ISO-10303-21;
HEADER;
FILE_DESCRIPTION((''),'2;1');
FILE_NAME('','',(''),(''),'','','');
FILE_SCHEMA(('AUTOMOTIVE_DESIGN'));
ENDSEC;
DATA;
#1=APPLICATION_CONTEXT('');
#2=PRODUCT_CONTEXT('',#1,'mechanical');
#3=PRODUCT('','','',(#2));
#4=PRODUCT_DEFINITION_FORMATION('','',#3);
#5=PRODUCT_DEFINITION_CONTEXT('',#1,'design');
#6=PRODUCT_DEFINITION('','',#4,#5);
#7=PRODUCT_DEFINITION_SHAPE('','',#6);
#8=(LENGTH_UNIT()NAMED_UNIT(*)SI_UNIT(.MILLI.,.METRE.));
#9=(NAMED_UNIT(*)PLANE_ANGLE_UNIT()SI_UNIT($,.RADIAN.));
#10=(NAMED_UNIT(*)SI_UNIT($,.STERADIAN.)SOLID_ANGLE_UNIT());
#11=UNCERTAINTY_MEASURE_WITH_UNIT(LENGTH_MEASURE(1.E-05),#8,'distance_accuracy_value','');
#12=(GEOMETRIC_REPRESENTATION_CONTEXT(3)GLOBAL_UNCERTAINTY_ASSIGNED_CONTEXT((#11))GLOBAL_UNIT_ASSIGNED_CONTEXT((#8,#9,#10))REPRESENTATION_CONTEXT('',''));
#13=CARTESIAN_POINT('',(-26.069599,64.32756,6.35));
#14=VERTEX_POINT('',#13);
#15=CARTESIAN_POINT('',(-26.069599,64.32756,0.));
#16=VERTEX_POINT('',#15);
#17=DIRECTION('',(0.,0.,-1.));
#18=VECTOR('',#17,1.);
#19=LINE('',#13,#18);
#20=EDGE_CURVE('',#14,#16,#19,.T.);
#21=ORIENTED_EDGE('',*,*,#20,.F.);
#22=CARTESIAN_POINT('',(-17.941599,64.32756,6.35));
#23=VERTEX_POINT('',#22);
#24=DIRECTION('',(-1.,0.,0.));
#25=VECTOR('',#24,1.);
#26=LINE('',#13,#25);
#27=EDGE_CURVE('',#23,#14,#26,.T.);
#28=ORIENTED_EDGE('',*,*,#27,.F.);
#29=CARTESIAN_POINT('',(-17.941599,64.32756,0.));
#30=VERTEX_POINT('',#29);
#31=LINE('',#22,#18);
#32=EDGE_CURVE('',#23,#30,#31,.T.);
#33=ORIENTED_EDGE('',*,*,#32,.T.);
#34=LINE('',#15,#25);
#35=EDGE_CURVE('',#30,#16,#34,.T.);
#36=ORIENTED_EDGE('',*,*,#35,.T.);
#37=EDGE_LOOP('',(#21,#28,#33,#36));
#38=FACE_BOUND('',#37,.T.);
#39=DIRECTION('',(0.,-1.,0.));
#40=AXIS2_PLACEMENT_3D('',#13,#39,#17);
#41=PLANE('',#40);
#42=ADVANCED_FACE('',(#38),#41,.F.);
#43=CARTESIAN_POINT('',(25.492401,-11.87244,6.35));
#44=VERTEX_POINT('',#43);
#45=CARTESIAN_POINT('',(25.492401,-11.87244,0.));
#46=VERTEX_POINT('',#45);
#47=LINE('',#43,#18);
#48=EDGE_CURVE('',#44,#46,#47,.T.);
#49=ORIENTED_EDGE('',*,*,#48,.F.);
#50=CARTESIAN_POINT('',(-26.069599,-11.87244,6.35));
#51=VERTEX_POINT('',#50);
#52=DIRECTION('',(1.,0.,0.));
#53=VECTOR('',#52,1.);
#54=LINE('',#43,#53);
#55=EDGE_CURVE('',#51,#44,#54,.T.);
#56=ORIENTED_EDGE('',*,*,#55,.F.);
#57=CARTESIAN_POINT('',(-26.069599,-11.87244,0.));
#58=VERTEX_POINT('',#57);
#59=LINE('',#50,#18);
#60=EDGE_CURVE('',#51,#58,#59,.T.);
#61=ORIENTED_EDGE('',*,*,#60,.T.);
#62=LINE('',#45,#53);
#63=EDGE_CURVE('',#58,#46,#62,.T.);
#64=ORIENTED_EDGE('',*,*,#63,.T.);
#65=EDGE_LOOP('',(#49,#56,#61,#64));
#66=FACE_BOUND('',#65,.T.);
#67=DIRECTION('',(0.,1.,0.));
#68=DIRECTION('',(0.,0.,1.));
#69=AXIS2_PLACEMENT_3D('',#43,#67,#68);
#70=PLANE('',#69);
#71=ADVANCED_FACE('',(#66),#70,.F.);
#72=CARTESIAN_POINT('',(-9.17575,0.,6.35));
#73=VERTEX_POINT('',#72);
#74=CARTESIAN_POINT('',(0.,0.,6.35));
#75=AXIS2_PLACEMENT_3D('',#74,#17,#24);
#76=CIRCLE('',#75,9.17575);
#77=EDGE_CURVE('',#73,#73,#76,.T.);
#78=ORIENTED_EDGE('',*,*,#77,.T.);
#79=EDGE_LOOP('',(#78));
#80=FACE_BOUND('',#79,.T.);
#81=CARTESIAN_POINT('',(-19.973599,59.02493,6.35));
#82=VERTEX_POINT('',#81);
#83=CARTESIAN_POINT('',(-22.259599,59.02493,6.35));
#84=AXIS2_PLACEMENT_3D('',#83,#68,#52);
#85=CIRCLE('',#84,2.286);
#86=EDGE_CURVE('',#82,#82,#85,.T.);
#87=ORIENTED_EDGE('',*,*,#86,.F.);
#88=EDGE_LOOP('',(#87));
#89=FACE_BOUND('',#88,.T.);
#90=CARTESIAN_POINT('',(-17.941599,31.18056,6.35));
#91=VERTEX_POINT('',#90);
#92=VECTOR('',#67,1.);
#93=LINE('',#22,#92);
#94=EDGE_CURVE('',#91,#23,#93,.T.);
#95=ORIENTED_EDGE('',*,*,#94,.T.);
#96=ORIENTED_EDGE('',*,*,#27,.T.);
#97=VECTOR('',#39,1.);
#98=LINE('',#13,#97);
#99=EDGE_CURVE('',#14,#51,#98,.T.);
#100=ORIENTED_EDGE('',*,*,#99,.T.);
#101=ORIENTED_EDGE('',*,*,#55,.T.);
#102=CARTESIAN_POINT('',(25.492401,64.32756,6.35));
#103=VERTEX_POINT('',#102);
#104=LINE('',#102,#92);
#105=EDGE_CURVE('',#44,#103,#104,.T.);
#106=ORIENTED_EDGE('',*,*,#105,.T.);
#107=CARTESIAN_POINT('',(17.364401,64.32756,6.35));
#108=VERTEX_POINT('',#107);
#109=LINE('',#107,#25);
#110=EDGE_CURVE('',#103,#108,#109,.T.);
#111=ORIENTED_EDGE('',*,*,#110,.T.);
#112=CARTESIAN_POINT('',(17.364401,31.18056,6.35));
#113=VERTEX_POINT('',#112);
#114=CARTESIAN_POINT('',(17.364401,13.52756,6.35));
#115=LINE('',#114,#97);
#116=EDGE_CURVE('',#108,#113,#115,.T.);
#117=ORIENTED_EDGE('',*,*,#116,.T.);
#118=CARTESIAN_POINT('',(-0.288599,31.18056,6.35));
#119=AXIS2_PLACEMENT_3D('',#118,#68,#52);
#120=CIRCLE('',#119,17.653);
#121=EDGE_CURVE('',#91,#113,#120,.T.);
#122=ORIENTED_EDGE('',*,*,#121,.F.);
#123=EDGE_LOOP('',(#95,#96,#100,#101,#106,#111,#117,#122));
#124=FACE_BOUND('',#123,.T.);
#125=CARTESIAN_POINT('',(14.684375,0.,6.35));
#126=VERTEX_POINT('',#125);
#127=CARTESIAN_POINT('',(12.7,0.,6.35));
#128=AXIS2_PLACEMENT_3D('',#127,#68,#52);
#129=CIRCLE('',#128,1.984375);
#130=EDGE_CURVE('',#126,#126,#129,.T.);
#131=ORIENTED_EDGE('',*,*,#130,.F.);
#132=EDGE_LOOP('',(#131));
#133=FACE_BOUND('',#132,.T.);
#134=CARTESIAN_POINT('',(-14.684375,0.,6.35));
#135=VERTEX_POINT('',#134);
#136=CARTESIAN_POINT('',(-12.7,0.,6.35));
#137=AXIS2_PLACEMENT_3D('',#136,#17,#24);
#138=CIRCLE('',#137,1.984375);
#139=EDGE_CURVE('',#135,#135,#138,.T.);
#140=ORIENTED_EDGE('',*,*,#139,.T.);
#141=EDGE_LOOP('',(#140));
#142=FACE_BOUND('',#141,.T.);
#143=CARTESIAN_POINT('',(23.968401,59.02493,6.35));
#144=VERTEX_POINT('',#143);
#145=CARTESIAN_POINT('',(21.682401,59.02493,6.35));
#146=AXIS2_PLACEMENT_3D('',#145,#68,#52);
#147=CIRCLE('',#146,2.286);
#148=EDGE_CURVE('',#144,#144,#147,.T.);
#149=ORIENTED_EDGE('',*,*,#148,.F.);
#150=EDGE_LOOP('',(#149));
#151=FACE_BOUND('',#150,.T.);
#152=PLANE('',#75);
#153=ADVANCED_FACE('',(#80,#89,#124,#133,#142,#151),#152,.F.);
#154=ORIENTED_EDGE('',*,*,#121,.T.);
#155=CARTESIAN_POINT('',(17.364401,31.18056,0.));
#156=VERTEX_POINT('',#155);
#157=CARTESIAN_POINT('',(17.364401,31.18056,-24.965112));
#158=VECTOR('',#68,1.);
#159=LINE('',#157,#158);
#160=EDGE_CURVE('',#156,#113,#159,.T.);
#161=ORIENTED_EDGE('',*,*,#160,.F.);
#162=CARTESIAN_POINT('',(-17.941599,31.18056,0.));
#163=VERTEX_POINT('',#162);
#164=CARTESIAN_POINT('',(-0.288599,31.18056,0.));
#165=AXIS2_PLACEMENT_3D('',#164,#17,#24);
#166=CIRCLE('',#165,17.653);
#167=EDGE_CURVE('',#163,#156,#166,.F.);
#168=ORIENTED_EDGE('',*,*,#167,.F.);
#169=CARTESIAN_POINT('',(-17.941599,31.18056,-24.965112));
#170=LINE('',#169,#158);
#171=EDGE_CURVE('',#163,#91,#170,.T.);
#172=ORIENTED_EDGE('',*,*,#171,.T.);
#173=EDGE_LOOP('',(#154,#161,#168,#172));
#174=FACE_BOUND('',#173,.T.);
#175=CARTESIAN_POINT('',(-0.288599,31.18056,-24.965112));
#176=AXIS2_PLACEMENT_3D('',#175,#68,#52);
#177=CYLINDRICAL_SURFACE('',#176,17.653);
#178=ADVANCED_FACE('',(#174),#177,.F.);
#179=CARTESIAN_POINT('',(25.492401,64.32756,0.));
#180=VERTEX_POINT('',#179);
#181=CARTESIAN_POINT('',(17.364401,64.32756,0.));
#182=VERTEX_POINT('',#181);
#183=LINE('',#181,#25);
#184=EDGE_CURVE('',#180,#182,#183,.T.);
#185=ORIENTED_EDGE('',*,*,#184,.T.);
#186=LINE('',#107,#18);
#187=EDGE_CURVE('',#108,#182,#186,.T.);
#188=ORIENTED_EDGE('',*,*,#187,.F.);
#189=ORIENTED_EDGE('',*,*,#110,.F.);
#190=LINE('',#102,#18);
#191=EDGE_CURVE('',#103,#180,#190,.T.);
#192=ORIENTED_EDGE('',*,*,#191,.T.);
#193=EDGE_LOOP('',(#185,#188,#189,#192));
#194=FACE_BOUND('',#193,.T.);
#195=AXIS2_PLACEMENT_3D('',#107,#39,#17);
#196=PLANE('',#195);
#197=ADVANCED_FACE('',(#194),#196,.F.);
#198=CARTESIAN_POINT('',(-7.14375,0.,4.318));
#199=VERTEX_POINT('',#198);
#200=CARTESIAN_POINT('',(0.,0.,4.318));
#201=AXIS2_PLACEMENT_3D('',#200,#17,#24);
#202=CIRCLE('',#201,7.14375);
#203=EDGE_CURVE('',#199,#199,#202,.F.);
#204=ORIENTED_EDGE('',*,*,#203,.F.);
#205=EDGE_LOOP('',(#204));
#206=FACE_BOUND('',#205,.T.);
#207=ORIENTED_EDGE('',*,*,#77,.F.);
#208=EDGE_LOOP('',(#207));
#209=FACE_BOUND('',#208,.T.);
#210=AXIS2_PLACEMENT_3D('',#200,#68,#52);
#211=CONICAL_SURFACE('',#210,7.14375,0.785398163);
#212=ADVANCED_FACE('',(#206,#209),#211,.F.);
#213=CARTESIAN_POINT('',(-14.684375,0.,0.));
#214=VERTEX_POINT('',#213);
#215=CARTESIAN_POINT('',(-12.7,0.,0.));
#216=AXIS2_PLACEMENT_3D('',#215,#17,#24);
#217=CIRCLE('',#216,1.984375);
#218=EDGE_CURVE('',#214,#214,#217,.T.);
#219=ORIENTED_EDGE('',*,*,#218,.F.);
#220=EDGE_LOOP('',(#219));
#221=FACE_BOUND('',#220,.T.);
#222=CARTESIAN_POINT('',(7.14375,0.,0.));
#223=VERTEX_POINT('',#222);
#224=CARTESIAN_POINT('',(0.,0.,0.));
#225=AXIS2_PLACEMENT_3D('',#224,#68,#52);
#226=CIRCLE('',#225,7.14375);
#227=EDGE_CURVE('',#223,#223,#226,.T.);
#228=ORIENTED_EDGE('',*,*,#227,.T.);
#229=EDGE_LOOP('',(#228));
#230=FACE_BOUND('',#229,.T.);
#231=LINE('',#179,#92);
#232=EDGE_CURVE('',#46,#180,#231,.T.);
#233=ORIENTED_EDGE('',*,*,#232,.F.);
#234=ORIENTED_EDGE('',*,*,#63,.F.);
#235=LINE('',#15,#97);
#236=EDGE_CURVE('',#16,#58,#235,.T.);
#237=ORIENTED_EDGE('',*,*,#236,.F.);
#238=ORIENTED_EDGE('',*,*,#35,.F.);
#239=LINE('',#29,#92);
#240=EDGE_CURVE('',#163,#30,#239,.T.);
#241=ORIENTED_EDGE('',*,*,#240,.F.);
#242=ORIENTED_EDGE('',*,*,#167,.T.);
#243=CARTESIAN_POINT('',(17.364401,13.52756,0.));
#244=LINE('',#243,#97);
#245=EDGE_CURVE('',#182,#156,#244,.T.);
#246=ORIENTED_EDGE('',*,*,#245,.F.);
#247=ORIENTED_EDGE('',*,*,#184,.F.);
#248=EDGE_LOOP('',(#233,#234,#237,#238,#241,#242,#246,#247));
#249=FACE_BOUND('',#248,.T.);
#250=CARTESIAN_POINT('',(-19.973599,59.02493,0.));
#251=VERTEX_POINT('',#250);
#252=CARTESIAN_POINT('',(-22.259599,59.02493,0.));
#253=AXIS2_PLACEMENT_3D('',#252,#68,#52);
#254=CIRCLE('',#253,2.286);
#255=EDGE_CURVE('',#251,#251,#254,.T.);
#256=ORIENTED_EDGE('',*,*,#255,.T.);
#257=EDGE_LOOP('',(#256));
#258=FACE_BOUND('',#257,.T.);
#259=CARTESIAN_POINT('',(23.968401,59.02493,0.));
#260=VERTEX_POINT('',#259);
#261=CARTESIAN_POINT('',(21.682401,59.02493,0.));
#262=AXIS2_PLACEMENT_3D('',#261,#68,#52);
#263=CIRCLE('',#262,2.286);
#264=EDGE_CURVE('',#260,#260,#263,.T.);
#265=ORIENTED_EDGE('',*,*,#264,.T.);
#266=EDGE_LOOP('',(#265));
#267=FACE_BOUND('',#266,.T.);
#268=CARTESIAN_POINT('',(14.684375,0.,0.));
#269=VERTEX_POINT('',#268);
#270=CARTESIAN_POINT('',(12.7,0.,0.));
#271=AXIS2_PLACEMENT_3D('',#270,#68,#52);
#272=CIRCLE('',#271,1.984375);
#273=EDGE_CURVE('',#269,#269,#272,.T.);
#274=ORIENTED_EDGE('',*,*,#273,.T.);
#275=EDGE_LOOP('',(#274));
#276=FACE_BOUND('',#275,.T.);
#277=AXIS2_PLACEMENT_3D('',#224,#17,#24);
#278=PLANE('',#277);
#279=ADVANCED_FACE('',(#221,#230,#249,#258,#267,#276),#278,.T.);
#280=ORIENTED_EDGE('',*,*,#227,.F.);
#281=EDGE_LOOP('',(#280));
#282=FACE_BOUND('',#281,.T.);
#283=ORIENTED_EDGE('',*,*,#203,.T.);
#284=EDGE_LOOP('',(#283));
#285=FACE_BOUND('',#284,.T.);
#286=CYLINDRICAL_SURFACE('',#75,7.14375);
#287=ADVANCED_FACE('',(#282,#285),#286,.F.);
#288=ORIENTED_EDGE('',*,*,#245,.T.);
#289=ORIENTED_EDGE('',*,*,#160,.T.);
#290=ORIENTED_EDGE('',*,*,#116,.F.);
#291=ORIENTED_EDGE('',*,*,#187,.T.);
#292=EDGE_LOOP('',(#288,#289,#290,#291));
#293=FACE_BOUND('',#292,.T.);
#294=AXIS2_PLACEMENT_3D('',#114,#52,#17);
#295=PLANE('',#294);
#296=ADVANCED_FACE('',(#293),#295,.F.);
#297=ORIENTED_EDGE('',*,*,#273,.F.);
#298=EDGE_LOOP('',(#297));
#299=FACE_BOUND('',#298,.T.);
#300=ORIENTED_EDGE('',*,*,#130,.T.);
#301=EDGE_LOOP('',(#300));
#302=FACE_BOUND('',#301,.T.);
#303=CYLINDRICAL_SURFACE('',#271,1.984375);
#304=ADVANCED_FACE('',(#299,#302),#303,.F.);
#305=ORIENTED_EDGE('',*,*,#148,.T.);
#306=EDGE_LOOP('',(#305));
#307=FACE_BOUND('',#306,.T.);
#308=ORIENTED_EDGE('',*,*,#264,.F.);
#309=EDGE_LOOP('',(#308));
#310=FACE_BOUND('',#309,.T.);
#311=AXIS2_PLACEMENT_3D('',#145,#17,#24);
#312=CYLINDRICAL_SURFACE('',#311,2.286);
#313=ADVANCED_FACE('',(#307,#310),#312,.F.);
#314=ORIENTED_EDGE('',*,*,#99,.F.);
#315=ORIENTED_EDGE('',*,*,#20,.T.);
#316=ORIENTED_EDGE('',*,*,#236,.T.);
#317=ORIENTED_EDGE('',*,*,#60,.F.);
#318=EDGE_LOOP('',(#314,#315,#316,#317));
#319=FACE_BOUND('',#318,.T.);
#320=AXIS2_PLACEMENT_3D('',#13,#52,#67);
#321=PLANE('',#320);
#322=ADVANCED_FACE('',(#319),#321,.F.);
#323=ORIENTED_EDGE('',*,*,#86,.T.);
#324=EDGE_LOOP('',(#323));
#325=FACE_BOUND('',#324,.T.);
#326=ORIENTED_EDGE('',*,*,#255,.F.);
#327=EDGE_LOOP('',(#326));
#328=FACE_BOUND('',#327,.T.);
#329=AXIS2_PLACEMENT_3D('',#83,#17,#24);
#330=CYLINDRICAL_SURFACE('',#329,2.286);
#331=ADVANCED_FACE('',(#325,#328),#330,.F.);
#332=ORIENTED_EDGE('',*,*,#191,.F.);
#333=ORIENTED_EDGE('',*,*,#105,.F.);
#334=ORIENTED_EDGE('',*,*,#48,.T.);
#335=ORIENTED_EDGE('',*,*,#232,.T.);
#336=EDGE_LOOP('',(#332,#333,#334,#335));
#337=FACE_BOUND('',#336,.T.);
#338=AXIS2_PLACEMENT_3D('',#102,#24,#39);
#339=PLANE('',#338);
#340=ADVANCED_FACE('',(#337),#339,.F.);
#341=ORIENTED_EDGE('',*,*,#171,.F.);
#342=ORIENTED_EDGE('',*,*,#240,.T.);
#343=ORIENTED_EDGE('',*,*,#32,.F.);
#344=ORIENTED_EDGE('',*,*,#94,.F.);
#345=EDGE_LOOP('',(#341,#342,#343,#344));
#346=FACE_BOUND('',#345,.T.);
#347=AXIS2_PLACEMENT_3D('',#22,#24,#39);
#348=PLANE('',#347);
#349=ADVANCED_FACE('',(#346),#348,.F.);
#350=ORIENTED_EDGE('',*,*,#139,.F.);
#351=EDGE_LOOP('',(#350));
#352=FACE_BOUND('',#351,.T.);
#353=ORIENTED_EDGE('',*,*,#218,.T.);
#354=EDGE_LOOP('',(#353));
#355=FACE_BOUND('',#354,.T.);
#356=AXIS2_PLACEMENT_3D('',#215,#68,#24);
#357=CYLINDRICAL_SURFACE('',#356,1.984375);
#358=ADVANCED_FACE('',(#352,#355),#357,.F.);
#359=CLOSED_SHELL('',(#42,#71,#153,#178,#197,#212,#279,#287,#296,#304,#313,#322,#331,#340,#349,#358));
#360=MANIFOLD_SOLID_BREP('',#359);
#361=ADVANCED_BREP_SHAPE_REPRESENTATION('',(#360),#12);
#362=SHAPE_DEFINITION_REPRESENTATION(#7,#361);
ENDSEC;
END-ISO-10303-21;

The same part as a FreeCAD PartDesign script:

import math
import FreeCAD as App
import Part
import Sketcher
Q = App.Units.Quantity


def edges_at(feature, points):
    """Names of the edges that pass closest to the given points."""
    edges = feature.Shape.Edges
    near = lambda p: min(range(len(edges)), key=lambda i: edges[i].distToShape(Part.Vertex(*p))[0])
    return sorted({f"Edge{near(p) + 1}" for p in points})


def add_polygon(sketch, points):
    """Adds a closed chain of lines whose ends are joined by coincident constraints."""
    first, n = sketch.GeometryCount, len(points)
    for a, b in zip(points, points[1:] + points[:1]):
        sketch.addGeometry(Part.LineSegment(App.Vector(*a, 0), App.Vector(*b, 0)), False)
    for i in range(n):
        sketch.addConstraint(Sketcher.Constraint("Coincident", first + i, 2, first + (i + 1) % n, 1))

doc = App.newDocument("Part")
body = doc.addObject("PartDesign::Body", "Body")

sketch1 = body.newObject("Sketcher::SketchObject", "Sketch")
sketch1.AttachmentSupport = (doc.getObject("XY_Plane"), [""])
sketch1.MapMode = "FlatFace"
add_polygon(sketch1, [(-17.941599, 64.32756), (-26.069599, 64.32756), (-26.069599, -11.87244), (25.492401, -11.87244), (25.492401, 64.32756), (17.364401, 64.32756), (17.364401, 13.52756), (-17.941599, 13.52756)])
sketch1.addGeometry(Part.Circle(App.Vector(0, 0, 0), App.Vector(0, 0, 1), 7.14375), False)
sketch1.addGeometry(Part.Circle(App.Vector(21.682401, 59.02493, 0), App.Vector(0, 0, 1), 2.286), False)
sketch1.addGeometry(Part.Circle(App.Vector(-22.259599, 59.02493, 0), App.Vector(0, 0, 1), 2.286), False)
sketch1.addConstraint([
    Sketcher.Constraint("Horizontal", 0),
    Sketcher.Constraint("Vertical", 1),
    Sketcher.Constraint("Horizontal", 2),
    Sketcher.Constraint("Vertical", 3),
    Sketcher.Constraint("Horizontal", 4),
    Sketcher.Constraint("Vertical", 5),
    Sketcher.Constraint("Horizontal", 6),
    Sketcher.Constraint("Vertical", 7),
    Sketcher.Constraint("Coincident", 8, 3, -1, 1),
    Sketcher.Constraint("Equal", 9, 10),
    Sketcher.Constraint("Horizontal", 9, 3, 10, 3),
    Sketcher.Constraint("Horizontal", 0, 2, 3, 2),
    Sketcher.Constraint("Equal", 0, 4),
    Sketcher.Constraint("Diameter", 9, Q("0.18 in")),
    Sketcher.Constraint("DistanceY", 1, 2, 1, 1, Q("3 in")),
    Sketcher.Constraint("DistanceY", 5, 2, 5, 1, Q("2 in")),
    Sketcher.Constraint("Diameter", 8, Q("0.5625 in")),
    Sketcher.Constraint("DistanceX", 0, 2, 0, 1, Q("0.32 in")),
    Sketcher.Constraint("DistanceX", 2, 1, 2, 2, Q("2.03 in")),
    Sketcher.Constraint("DistanceX", 10, 3, 9, 3, Q("1.73 in")),
    Sketcher.Constraint("DistanceX", 0, 2, 10, 3, Q("0.15 in")),
    Sketcher.Constraint("DistanceX", -1, 1, 9, 3, Q("21.682401 mm")),
    Sketcher.Constraint("DistanceY", -1, 1, 9, 3, Q("59.02493 mm")),
    Sketcher.Constraint("DistanceY", -1, 1, 0, 2, Q("64.32756 mm")),
])
pad1 = body.newObject("PartDesign::Pad", "Pad")
pad1.Profile = sketch1
pad1.Length = Q("0.25 in")

sketch2 = body.newObject("Sketcher::SketchObject", "Sketch001")
sketch2.AttachmentSupport = (doc.getObject("XY_Plane"), [""])
sketch2.MapMode = "FlatFace"
sketch2.AttachmentOffset = App.Placement(App.Vector(0, 0, 0.25 * 25.4), App.Rotation())
sketch2.addGeometry(Part.Circle(App.Vector(12.7, 0, 0), App.Vector(0, 0, 1), 1.984375), False)
sketch2.addConstraint([
    Sketcher.Constraint("PointOnObject", 0, 3, -1),
    Sketcher.Constraint("Diameter", 0, Q("0.15625 in")),
    Sketcher.Constraint("DistanceX", -1, 1, 0, 3, Q("0.5 in")),
])
pocket1 = body.newObject("PartDesign::Pocket", "Pocket")
pocket1.Profile = sketch2
pocket1.Type = "ThroughAll"
doc.recompute()

mirrored = body.newObject("PartDesign::Mirrored", "Mirrored")
mirrored.Originals = [pocket1]
mirrored.MirrorPlane = (doc.getObject("YZ_Plane"), [""])
body.Tip = mirrored

sketch3 = body.newObject("Sketcher::SketchObject", "Sketch002")
sketch3.AttachmentSupport = (doc.getObject("XY_Plane"), [""])
sketch3.MapMode = "FlatFace"
sketch3.AttachmentOffset = App.Placement(App.Vector(0, 0, 0.25 * 25.4), App.Rotation())
sketch3.addGeometry([
    Part.ArcOfCircle(Part.Circle(App.Vector(-0.288599, 31.18056, 0), App.Vector(0, 0, 1), 17.653), math.radians(-180), math.radians(-90)),
    Part.LineSegment(App.Vector(-17.941599, 31.18056, 0), App.Vector(-17.941599, 13.52756, 0)),
    Part.LineSegment(App.Vector(-17.941599, 13.52756, 0), App.Vector(-0.288599, 13.52756, 0)),
    Part.ArcOfCircle(Part.Circle(App.Vector(-0.288599, 31.18056, 0), App.Vector(0, 0, 1), 17.653), math.radians(-90), math.radians(0)),
    Part.LineSegment(App.Vector(-0.288599, 13.52756, 0), App.Vector(17.364401, 13.52756, 0)),
    Part.LineSegment(App.Vector(17.364401, 13.52756, 0), App.Vector(17.364401, 31.18056, 0)),
], False)
sketch3.addConstraint([
    Sketcher.Constraint("Tangent", 0, 1, 1, 1),
    Sketcher.Constraint("Coincident", 1, 2, 2, 1),
    Sketcher.Constraint("Tangent", 2, 2, 0, 2),
    Sketcher.Constraint("Tangent", 3, 1, 4, 1),
    Sketcher.Constraint("Coincident", 4, 2, 5, 1),
    Sketcher.Constraint("Tangent", 5, 2, 3, 2),
    Sketcher.Constraint("Vertical", 1),
    Sketcher.Constraint("Horizontal", 2),
    Sketcher.Constraint("Horizontal", 4),
    Sketcher.Constraint("Vertical", 5),
    Sketcher.Constraint("Coincident", 3, 3, 0, 3),
    Sketcher.Constraint("Equal", 0, 3),
    Sketcher.Constraint("Radius", 0, Q("0.695 in")),
    Sketcher.Constraint("DistanceX", 0, 3, -1, 1, Q("0.288599 mm")),
    Sketcher.Constraint("DistanceY", -1, 1, 0, 3, Q("31.18056 mm")),
])
pad2 = body.newObject("PartDesign::Pad", "Pad001")
pad2.Profile = sketch3
pad2.Length = Q("0.25 in")
pad2.Reversed = True
doc.recompute()

chamfer = body.newObject("PartDesign::Chamfer", "Chamfer")
chamfer.Base = (pad2, edges_at(pad2, [(-7.144, 0, 6.35)]))
chamfer.Size = Q("0.08 in")

doc.recompute()
